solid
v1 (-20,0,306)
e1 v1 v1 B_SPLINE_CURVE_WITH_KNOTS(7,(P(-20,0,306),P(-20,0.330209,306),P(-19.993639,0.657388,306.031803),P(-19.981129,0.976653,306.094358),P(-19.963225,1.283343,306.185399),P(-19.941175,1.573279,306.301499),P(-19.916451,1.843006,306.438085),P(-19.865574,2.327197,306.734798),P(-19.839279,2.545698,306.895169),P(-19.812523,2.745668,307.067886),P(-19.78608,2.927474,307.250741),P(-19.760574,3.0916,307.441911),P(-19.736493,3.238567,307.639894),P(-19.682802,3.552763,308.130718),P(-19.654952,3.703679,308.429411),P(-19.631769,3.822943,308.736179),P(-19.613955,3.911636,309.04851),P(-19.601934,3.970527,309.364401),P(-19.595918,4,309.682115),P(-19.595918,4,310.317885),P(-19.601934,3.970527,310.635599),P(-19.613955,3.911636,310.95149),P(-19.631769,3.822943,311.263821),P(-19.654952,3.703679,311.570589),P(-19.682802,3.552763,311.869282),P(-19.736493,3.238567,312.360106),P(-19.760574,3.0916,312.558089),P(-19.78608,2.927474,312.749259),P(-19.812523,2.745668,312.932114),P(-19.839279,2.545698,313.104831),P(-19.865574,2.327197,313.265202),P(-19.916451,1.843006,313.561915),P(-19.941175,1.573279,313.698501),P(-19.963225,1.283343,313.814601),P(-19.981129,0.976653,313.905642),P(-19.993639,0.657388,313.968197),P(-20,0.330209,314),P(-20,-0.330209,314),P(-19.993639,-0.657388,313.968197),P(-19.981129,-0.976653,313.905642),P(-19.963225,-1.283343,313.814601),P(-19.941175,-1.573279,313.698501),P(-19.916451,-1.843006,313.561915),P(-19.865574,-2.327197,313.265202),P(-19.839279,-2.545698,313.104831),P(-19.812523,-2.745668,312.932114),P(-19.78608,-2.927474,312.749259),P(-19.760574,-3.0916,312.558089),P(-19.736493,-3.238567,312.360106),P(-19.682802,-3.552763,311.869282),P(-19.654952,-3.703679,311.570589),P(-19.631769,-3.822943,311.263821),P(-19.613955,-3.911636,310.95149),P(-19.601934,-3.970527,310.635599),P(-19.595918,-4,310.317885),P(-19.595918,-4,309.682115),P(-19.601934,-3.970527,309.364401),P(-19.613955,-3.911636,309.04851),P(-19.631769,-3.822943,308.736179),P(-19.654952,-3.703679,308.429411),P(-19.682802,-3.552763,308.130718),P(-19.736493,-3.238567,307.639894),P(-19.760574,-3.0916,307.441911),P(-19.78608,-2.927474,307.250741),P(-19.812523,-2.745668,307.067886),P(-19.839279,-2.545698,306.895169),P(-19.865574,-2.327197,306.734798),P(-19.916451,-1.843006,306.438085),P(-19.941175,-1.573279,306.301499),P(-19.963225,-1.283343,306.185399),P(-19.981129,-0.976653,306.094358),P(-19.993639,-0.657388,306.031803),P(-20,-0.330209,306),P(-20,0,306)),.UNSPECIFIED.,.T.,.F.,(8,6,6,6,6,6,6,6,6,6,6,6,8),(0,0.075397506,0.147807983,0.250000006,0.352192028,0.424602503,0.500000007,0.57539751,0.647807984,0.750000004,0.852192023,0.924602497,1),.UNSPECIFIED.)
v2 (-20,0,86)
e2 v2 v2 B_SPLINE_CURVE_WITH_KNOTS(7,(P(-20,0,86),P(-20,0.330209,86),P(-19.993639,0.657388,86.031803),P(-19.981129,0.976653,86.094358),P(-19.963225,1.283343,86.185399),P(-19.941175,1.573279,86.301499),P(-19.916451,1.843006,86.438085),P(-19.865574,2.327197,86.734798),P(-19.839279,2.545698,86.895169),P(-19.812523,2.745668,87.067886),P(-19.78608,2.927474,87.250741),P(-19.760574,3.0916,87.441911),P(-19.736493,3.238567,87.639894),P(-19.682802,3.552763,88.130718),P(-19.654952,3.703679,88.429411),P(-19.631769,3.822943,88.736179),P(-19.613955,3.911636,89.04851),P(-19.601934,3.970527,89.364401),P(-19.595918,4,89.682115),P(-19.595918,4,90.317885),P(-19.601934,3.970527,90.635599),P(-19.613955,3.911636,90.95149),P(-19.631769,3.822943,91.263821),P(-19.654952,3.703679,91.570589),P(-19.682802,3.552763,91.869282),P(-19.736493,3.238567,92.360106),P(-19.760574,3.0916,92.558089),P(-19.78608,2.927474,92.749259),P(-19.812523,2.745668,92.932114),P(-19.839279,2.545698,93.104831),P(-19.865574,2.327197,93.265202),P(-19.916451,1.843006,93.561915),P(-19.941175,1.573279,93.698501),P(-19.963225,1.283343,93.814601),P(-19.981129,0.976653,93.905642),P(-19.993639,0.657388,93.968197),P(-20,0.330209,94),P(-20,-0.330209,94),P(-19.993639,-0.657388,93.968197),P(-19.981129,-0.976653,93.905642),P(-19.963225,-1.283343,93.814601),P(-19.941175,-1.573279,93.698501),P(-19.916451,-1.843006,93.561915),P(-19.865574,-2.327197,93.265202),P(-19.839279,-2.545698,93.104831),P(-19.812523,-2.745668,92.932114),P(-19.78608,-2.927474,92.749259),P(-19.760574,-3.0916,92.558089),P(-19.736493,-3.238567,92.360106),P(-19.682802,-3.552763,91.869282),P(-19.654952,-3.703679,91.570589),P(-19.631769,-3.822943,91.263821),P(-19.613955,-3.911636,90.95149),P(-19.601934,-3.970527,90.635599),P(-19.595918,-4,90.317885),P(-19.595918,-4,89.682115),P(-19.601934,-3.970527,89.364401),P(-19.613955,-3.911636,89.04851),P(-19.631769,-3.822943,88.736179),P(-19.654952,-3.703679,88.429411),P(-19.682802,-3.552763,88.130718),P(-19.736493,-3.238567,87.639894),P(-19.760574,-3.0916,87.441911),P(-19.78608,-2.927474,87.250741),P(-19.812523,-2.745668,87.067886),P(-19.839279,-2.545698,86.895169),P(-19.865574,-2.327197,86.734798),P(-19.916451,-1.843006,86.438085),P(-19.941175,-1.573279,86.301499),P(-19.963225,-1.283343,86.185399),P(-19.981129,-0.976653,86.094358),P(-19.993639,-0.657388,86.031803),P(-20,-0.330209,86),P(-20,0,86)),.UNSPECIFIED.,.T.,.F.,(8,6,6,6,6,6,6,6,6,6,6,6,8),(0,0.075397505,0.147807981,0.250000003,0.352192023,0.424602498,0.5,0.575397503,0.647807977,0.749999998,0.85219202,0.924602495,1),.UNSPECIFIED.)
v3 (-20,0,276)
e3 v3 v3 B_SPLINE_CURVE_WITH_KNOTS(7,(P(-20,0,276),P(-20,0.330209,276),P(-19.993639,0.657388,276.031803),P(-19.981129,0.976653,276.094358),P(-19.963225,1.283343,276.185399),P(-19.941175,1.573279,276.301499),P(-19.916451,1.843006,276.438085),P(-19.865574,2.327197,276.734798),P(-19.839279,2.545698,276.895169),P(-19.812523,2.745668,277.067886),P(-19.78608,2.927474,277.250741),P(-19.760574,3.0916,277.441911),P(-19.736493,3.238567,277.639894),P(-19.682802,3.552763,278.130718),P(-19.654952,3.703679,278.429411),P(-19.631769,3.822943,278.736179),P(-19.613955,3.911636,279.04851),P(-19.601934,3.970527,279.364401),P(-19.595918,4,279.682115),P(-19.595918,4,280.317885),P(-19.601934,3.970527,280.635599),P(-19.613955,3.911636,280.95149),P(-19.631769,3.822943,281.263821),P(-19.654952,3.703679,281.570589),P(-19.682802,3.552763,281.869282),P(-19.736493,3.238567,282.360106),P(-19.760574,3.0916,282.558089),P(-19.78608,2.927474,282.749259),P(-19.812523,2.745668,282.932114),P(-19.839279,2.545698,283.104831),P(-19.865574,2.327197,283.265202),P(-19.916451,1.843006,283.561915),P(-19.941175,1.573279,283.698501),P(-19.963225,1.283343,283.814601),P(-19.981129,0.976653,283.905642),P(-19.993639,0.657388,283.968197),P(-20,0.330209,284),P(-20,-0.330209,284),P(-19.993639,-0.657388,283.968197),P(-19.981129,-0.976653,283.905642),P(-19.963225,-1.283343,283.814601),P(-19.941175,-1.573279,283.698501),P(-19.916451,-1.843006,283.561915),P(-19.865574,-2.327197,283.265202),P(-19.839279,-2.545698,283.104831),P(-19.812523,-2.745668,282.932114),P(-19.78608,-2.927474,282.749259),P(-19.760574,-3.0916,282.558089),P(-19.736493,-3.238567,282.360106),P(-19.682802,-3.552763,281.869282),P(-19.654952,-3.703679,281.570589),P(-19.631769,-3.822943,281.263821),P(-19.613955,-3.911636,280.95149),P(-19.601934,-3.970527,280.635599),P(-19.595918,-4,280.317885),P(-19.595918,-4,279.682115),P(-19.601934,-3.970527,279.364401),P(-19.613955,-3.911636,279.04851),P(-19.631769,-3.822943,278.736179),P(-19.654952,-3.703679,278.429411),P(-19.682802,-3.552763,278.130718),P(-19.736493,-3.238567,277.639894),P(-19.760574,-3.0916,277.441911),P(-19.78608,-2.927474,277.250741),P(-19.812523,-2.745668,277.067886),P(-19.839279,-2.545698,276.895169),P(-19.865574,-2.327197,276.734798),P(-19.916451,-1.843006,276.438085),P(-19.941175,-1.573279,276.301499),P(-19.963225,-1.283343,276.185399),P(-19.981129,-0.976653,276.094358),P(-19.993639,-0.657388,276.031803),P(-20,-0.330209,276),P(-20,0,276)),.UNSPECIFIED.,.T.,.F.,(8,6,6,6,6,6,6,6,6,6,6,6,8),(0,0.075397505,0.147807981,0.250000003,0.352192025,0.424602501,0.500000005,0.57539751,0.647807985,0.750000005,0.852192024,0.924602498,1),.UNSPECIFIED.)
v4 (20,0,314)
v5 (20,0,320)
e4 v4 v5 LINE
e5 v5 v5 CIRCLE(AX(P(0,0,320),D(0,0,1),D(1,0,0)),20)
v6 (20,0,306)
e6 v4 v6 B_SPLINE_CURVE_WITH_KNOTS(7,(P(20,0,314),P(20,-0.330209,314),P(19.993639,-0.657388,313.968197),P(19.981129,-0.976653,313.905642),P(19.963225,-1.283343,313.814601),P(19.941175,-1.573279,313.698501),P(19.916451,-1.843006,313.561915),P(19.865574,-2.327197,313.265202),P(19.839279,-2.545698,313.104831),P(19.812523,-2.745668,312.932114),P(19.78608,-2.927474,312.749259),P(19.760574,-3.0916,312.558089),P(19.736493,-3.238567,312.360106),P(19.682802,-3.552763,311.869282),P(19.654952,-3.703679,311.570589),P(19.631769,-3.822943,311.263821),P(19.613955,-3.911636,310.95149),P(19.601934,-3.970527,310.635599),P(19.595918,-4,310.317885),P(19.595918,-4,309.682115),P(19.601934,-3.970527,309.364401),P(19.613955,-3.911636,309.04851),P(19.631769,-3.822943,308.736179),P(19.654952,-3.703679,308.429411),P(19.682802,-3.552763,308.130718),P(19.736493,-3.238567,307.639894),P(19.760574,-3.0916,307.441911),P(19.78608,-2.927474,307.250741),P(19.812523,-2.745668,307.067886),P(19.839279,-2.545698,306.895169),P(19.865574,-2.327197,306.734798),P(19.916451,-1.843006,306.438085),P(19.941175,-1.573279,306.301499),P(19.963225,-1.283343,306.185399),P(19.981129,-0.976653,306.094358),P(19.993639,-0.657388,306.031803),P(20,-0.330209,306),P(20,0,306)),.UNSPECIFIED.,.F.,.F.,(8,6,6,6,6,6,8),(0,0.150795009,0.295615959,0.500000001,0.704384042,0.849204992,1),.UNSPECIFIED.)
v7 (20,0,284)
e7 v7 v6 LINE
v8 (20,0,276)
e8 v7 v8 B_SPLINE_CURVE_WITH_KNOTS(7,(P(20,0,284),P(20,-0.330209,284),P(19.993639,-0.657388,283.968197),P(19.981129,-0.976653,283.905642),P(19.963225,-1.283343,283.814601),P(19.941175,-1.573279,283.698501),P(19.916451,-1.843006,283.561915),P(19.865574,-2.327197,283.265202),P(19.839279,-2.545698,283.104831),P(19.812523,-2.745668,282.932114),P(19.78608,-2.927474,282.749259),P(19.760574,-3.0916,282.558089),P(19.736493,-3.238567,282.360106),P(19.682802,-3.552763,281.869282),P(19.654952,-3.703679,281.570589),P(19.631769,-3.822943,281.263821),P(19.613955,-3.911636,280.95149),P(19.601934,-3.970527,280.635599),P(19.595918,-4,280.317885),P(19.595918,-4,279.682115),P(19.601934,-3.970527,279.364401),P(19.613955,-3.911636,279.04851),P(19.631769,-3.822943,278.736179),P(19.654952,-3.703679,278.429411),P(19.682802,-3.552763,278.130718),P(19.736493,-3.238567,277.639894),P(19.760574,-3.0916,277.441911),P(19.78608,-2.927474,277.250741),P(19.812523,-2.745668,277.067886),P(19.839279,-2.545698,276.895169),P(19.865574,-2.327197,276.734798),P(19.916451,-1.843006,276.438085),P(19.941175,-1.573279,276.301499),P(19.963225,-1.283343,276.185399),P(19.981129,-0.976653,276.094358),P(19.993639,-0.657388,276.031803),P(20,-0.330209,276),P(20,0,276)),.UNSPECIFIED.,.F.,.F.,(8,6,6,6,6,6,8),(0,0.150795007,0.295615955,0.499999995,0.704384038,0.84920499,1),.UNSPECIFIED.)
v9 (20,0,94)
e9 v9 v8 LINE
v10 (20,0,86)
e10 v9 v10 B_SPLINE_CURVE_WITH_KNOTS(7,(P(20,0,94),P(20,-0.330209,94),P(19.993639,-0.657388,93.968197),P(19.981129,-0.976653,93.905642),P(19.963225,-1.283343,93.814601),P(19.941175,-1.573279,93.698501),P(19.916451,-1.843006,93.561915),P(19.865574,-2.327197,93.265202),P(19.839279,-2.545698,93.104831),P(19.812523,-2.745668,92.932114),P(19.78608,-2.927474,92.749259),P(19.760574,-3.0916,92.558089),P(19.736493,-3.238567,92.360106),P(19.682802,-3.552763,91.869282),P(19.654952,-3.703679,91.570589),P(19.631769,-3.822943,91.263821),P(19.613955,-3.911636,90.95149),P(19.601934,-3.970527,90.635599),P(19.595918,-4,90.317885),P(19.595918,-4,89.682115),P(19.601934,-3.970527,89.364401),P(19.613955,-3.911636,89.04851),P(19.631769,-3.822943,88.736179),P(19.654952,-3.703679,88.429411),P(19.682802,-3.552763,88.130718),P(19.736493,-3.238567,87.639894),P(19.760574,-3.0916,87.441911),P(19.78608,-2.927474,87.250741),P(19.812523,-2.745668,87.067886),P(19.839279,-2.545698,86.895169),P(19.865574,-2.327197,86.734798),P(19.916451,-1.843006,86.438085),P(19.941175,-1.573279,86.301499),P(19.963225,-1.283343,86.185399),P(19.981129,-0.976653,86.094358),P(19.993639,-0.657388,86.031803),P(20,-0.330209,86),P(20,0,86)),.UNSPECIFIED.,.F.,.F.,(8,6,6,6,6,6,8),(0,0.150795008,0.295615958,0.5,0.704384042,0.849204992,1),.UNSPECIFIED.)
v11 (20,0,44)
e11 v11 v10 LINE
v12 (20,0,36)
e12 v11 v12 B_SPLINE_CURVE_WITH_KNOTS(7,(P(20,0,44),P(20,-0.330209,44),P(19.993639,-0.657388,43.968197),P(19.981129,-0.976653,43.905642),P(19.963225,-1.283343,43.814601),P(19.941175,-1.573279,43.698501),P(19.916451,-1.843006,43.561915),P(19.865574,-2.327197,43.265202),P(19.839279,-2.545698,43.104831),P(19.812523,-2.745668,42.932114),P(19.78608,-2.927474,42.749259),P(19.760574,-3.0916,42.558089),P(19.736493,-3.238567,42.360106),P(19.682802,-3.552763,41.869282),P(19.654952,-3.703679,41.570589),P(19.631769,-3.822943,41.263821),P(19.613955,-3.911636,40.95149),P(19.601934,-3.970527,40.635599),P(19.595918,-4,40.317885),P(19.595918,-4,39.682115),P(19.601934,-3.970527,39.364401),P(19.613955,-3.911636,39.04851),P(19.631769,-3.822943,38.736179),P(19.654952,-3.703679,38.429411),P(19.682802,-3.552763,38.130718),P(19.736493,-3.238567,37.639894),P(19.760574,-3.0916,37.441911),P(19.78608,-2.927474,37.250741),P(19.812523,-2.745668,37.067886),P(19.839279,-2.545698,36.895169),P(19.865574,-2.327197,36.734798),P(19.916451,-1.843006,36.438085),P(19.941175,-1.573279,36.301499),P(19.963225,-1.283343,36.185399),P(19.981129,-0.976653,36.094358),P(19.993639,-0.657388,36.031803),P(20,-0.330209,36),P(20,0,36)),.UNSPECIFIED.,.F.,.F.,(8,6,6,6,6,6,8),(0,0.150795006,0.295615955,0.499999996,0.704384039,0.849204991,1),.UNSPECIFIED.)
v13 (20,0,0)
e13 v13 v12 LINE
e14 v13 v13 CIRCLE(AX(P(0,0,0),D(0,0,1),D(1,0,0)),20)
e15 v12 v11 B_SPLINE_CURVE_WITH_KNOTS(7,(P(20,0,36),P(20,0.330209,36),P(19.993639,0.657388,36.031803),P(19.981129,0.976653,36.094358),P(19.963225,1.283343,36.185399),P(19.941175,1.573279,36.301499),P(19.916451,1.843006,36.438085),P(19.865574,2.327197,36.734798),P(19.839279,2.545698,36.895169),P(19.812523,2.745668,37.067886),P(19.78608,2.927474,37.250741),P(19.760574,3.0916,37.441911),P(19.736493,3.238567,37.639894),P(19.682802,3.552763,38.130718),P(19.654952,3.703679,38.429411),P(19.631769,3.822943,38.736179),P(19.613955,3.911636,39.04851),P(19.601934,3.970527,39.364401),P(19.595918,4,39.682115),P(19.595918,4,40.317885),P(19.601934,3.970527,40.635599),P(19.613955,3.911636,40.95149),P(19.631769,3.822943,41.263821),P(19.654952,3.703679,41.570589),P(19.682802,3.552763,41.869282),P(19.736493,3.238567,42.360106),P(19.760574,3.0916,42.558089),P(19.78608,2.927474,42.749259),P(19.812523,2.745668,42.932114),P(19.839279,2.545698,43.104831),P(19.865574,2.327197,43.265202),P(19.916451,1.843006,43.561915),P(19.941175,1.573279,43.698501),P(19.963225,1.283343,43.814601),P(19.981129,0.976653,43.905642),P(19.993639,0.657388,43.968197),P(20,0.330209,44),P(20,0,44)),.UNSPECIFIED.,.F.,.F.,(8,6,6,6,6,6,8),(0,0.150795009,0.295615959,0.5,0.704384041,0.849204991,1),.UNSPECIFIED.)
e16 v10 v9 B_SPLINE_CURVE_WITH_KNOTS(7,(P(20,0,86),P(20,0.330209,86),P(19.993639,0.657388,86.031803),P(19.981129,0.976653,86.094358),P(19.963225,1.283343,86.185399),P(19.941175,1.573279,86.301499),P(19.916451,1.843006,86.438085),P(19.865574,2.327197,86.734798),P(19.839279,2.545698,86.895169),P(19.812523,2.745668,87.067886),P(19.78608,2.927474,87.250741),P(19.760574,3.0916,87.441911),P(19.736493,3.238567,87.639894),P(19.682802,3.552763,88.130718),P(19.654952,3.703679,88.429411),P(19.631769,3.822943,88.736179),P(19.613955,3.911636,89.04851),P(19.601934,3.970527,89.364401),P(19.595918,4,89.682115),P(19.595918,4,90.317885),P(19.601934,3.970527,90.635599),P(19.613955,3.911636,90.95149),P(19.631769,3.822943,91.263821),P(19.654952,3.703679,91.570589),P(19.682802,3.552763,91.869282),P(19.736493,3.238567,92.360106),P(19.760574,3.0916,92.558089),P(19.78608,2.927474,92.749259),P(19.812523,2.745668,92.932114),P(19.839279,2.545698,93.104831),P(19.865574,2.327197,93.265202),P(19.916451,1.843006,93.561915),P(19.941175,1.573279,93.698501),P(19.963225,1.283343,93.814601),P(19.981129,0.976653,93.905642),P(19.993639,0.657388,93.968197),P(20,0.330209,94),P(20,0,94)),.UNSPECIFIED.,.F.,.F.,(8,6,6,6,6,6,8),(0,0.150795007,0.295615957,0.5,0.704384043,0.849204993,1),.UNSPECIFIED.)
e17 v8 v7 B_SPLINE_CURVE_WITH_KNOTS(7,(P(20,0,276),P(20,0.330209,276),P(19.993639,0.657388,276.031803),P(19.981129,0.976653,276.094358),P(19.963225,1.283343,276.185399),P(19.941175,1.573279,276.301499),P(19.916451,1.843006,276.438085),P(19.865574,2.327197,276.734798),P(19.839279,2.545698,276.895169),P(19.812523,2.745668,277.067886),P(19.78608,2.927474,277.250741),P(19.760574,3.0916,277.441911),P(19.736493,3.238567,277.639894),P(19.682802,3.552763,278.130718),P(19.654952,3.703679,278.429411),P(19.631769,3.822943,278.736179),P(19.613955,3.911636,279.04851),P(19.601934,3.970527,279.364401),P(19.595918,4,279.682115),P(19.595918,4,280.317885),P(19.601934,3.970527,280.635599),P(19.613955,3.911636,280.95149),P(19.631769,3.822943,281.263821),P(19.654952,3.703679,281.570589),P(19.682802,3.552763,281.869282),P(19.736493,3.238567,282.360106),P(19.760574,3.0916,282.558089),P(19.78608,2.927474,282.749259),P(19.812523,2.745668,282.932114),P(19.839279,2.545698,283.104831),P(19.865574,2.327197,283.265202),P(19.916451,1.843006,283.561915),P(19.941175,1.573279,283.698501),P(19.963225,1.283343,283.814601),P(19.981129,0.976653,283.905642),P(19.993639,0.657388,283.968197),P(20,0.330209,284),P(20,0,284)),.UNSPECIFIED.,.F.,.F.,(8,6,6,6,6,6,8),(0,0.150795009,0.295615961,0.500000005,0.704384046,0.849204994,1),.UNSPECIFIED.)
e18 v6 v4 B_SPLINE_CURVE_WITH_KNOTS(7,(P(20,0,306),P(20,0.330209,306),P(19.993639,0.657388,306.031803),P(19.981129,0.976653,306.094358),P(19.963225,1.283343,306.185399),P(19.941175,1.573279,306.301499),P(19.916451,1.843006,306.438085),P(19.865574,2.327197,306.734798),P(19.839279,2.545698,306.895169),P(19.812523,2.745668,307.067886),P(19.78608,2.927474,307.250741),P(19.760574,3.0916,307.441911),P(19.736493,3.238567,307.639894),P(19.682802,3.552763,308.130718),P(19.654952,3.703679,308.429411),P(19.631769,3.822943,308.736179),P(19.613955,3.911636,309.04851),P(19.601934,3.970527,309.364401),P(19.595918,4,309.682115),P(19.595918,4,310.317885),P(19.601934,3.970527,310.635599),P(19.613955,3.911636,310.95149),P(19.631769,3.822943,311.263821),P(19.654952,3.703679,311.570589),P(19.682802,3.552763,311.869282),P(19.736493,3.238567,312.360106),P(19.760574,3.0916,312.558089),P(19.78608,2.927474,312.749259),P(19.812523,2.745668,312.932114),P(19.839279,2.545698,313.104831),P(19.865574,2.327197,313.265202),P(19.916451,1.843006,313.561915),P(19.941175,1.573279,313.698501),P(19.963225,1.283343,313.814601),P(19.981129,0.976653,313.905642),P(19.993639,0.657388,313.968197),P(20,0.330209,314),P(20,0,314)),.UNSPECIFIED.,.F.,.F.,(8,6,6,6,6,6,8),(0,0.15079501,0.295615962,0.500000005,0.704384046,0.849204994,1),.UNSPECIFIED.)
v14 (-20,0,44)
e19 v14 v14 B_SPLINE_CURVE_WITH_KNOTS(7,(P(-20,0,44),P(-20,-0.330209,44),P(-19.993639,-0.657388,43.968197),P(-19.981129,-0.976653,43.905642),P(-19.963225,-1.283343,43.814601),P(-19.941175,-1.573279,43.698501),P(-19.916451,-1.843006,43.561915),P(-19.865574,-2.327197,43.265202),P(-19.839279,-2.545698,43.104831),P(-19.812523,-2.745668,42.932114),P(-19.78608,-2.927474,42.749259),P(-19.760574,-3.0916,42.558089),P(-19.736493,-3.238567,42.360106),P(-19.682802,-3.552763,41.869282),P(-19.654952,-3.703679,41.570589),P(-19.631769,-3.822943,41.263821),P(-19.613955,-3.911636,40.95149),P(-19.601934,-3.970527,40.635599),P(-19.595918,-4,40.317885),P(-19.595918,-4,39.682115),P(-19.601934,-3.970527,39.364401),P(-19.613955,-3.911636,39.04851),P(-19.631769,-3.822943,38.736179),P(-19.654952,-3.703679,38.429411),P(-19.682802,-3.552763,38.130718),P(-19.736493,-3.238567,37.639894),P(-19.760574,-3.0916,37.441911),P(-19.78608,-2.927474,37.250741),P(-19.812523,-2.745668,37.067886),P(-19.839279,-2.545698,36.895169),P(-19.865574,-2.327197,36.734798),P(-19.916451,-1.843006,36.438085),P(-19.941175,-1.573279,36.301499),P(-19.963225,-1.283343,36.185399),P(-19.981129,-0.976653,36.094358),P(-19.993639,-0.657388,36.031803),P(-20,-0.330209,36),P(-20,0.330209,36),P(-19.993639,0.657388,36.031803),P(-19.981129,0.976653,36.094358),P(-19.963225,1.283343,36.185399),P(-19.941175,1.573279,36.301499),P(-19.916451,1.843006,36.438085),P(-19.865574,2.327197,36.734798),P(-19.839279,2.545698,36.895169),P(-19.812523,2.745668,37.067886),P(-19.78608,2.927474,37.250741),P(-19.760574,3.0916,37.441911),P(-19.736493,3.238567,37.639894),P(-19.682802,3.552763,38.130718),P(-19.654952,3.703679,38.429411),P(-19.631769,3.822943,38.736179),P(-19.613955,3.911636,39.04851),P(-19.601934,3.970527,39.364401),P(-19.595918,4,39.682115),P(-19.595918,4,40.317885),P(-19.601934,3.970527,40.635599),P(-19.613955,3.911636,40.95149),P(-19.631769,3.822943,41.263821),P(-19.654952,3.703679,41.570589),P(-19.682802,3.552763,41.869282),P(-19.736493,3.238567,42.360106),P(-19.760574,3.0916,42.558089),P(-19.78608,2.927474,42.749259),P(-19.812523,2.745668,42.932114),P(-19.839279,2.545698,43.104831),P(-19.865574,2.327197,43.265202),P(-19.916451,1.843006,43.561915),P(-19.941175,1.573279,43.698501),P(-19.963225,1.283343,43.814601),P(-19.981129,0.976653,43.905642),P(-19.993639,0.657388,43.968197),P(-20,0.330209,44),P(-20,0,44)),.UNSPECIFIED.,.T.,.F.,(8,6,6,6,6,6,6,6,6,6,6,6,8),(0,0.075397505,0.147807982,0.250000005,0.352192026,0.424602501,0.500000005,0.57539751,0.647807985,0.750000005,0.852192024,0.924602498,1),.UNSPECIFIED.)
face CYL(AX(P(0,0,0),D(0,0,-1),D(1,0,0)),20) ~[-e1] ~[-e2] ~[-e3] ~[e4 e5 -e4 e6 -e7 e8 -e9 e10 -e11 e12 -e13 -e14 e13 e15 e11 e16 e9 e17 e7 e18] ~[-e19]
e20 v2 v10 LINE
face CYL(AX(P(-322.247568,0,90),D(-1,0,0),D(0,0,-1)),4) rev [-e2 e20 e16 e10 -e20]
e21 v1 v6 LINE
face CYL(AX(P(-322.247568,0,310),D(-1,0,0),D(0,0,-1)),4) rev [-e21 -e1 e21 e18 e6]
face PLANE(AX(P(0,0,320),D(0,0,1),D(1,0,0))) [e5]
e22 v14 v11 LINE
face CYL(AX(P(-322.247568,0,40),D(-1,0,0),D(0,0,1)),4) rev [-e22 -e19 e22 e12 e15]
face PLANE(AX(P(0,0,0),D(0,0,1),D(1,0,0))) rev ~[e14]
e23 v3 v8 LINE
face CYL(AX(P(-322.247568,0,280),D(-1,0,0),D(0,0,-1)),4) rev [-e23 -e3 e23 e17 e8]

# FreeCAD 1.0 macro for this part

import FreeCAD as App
import Part
import Sketcher

V = App.Vector

doc = App.newDocument("Part")
params = doc.addObject("Spreadsheet::Sheet", "Params")
for row, (alias, value) in enumerate([
    ("sketch1_diameter", "40 mm"),
    ("pad1_length", "320 mm"),
    ("sketch2_diameter", "8 mm"),
], start=1):
    params.set(f"A{row}", alias)
    params.set(f"B{row}", "=" + value)
    params.setAlias(f"B{row}", alias)

body = doc.addObject("PartDesign::Body", "Body")

# Sketch on XY plane
sketch1 = body.newObject("Sketcher::SketchObject", "Sketch")
sketch1.AttachmentSupport = (doc.getObject("XY_Plane"), [""])
sketch1.MapMode = "FlatFace"
sketch1.addGeometry(Part.Circle(V(0, 0, 0), V(0, 0, 1), 20), False)
sketch1.addConstraint([
    Sketcher.Constraint("Coincident", 0, 3, -1, 1),
    Sketcher.Constraint("Diameter", 0, 40.0),
])
sketch1.setExpression("Constraints[1]", "Params.sketch1_diameter")
pad1 = body.newObject("PartDesign::Pad", "Pad")
pad1.Profile = sketch1
pad1.setExpression("Length", "Params.pad1_length")

# Sketch on YZ plane
sketch2 = body.newObject("Sketcher::SketchObject", "Sketch001")
sketch2.AttachmentSupport = (doc.getObject("YZ_Plane"), [""])
sketch2.MapMode = "FlatFace"
sketch2.addGeometry([
    Part.Circle(V(0, 40, 0), V(0, 0, 1), 4),
    Part.Circle(V(0, 90, 0), V(0, 0, 1), 4),
    Part.Circle(V(0, 310, 0), V(0, 0, 1), 4),
    Part.Circle(V(0, 280, 0), V(0, 0, 1), 4),
], False)
sketch2.addConstraint([
    Sketcher.Constraint("Equal", 0, 1),
    Sketcher.Constraint("Equal", 1, 2),
    Sketcher.Constraint("Equal", 2, 3),
    Sketcher.Constraint("PointOnObject", 0, 3, -2),
    Sketcher.Constraint("PointOnObject", 1, 3, -2),
    Sketcher.Constraint("PointOnObject", 2, 3, -2),
    Sketcher.Constraint("PointOnObject", 3, 3, -2),
    Sketcher.Constraint("Diameter", 0, 8.0),
    Sketcher.Constraint("DistanceY", -1, 1, 0, 3, 40.0),
    Sketcher.Constraint("DistanceY", -1, 1, 1, 3, 90.0),
    Sketcher.Constraint("DistanceY", -1, 1, 2, 3, 310.0),
    Sketcher.Constraint("DistanceY", -1, 1, 3, 3, 280.0),
])
sketch2.setExpression("Constraints[7]", "Params.sketch2_diameter")
pocket1 = body.newObject("PartDesign::Pocket", "Pocket")
pocket1.Profile = sketch2
pocket1.Type = "ThroughAll"
pocket1.Midplane = True

doc.recompute()
